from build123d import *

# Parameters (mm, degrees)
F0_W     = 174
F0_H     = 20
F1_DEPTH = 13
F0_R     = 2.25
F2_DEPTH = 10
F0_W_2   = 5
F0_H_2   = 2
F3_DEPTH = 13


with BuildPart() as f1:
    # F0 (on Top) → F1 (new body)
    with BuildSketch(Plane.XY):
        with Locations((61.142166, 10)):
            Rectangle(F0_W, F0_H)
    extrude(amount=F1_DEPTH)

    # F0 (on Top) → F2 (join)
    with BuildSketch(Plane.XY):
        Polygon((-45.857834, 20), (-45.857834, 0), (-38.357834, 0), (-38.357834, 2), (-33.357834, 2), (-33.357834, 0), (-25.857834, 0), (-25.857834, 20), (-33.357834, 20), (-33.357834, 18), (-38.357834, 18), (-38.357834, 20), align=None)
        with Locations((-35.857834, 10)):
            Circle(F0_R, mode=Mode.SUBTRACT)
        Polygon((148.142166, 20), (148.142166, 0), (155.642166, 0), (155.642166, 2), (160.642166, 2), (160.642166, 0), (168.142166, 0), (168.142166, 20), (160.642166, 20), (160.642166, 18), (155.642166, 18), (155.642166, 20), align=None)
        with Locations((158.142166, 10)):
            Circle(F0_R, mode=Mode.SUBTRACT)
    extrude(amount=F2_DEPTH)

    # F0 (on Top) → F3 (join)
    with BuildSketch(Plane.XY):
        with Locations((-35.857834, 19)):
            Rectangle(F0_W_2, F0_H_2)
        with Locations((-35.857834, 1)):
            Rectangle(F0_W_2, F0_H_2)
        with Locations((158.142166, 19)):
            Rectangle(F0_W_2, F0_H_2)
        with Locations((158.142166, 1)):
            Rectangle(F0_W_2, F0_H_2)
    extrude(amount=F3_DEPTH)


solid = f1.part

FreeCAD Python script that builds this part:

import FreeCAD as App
import Part
import Sketcher

V = App.Vector


def add_polygon(sketch, points):
    """Adds a closed chain of lines whose ends are joined by coincident constraints."""
    first, n = sketch.GeometryCount, len(points)
    for a, b in zip(points, points[1:] + points[:1]):
        sketch.addGeometry(Part.LineSegment(App.Vector(*a, 0), App.Vector(*b, 0)), False)
    for i in range(n):
        sketch.addConstraint(Sketcher.Constraint("Coincident", first + i, 2, first + (i + 1) % n, 1))

doc = App.newDocument("Part")
body = doc.addObject("PartDesign::Body", "Body")

# Sketch on XY plane
sketch1 = doc.addObject("Sketcher::SketchObject", "Sketch")
body.addObject(sketch1)
sketch1.AttachmentSupport = (doc.XY_Plane, [""])
sketch1.MapMode = "FlatFace"
add_polygon(sketch1, [(-26, 20), (-26, 0), (148, 0), (148, 20)])  # lines 0-3
sketch1.addConstraint([
    Sketcher.Constraint("Vertical", 0),
    Sketcher.Constraint("Horizontal", 1),
    Sketcher.Constraint("Vertical", 2),
    Sketcher.Constraint("Horizontal", 3),
    Sketcher.Constraint("PointOnObject", 0, 2, -1),
    Sketcher.Constraint("DistanceX", 1, 1, 1, 2, 174.0),
    Sketcher.Constraint("DistanceY", 0, 2, 0, 1, 20.0),
    Sketcher.Constraint("DistanceX", 0, 2, -1, 1, 25.857834),
])
pad1 = doc.addObject("PartDesign::Pad", "Pad")
body.addObject(pad1)
pad1.Profile = sketch1
pad1.Length = 13

# Sketch on XY plane
sketch2 = doc.addObject("Sketcher::SketchObject", "Sketch001")
body.addObject(sketch2)
sketch2.AttachmentSupport = (doc.XY_Plane, [""])
sketch2.MapMode = "FlatFace"
add_polygon(sketch2, [(-45.9, 20), (-45.9, 0), (-38.4, 0), (-38.4, 2), (-33.4, 2), (-33.4, 0), (-25.9, 0), (-25.9, 20), (-33.4, 20), (-33.4, 18), (-38.4, 18), (-38.4, 20)])  # lines 0-11
sketch2.addGeometry(Part.Circle(V(-35.9, 10, 0), V(0, 0, 1), 2.2), False)  # 12
add_polygon(sketch2, [(148.1, 20), (148.1, 0), (155.6, 0), (155.6, 2), (160.6, 2), (160.6, 0), (168.1, 0), (168.1, 20), (160.6, 20), (160.6, 18), (155.6, 18), (155.6, 20)])  # lines 13-24
sketch2.addGeometry(Part.Circle(V(158.1, 10, 0), V(0, 0, 1), 2.2), False)  # 25
sketch2.addConstraint([
    Sketcher.Constraint("Vertical", 0),
    Sketcher.Constraint("Horizontal", 1),
    Sketcher.Constraint("Vertical", 2),
    Sketcher.Constraint("Horizontal", 3),
    Sketcher.Constraint("Vertical", 4),
    Sketcher.Constraint("Horizontal", 5),
    Sketcher.Constraint("Vertical", 6),
    Sketcher.Constraint("Horizontal", 7),
    Sketcher.Constraint("Vertical", 8),
    Sketcher.Constraint("Horizontal", 9),
    Sketcher.Constraint("Vertical", 10),
    Sketcher.Constraint("Horizontal", 11),
    Sketcher.Constraint("Vertical", 13),
    Sketcher.Constraint("Horizontal", 14),
    Sketcher.Constraint("Vertical", 15),
    Sketcher.Constraint("Horizontal", 16),
    Sketcher.Constraint("Vertical", 17),
    Sketcher.Constraint("Horizontal", 18),
    Sketcher.Constraint("Vertical", 19),
    Sketcher.Constraint("Horizontal", 20),
    Sketcher.Constraint("Vertical", 21),
    Sketcher.Constraint("Horizontal", 22),
    Sketcher.Constraint("Vertical", 23),
    Sketcher.Constraint("Horizontal", 24),
    Sketcher.Constraint("Equal", 12, 25),
    Sketcher.Constraint("PointOnObject", 0, 2, -1),
    Sketcher.Constraint("PointOnObject", 4, 2, -1),
    Sketcher.Constraint("PointOnObject", 13, 2, -1),
    Sketcher.Constraint("PointOnObject", 17, 2, -1),
    Sketcher.Constraint("Horizontal", 12, 3, 25, 3),
    Sketcher.Constraint("Horizontal", 7, 2, 10, 2),
    Sketcher.Constraint("Horizontal", 3, 2, 15, 2),
    Sketcher.Constraint("Horizontal", 11, 2, 19, 2),
    Sketcher.Constraint("Horizontal", 9, 2, 21, 2),
    Sketcher.Constraint("Horizontal", 20, 2, 23, 2),
    Sketcher.Constraint("Vertical", 4, 2, 7, 2),
    Sketcher.Constraint("Vertical", 2, 2, 9, 2),
    Sketcher.Constraint("Vertical", 17, 2, 20, 2),
    Sketcher.Constraint("Vertical", 15, 2, 22, 2),
    Sketcher.Constraint("Equal", 1, 5),
    Sketcher.Constraint("Equal", 11, 14),
    Sketcher.Constraint("Equal", 9, 16),
    Sketcher.Constraint("Equal", 14, 18),
    Sketcher.Constraint("Equal", 4, 8),
    Sketcher.Constraint("Diameter", 12, 4.5),
    Sketcher.Constraint("DistanceX", 3, 1, 3, 2, 5.0),
    Sketcher.Constraint("DistanceY", 0, 2, 0, 1, 20.0),
    Sketcher.Constraint("DistanceY", 2, 1, 2, 2, 2.0),
    Sketcher.Constraint("DistanceX", 1, 1, 1, 2, 7.5),
    Sketcher.Constraint("DistanceY", -1, 1, 12, 3, 10.0),
    Sketcher.Constraint("DistanceX", 12, 3, 25, 3, 194.0),
    Sketcher.Constraint("DistanceX", 0, 2, 12, 3, 10.0),
    Sketcher.Constraint("DistanceX", 13, 2, 25, 3, 10.0),
    Sketcher.Constraint("DistanceX", 12, 3, -1, 1, 35.857834),
])
pad2 = doc.addObject("PartDesign::Pad", "Pad001")
body.addObject(pad2)
pad2.Profile = sketch2
pad2.Length = 10

# Sketch on XY plane
sketch3 = doc.addObject("Sketcher::SketchObject", "Sketch002")
body.addObject(sketch3)
sketch3.AttachmentSupport = (doc.XY_Plane, [""])
sketch3.MapMode = "FlatFace"
add_polygon(sketch3, [(-38.4, 20), (-38.4, 18), (-33.4, 18), (-33.4, 20)])  # lines 0-3
add_polygon(sketch3, [(-38.4, 2), (-38.4, 0), (-33.4, 0), (-33.4, 2)])  # lines 4-7
add_polygon(sketch3, [(155.6, 20), (155.6, 18), (160.6, 18), (160.6, 20)])  # lines 8-11
add_polygon(sketch3, [(155.6, 2), (155.6, 0), (160.6, 0), (160.6, 2)])  # lines 12-15
sketch3.addConstraint([
    Sketcher.Constraint("Vertical", 0),
    Sketcher.Constraint("Horizontal", 1),
    Sketcher.Constraint("Vertical", 2),
    Sketcher.Constraint("Horizontal", 3),
    Sketcher.Constraint("Vertical", 4),
    Sketcher.Constraint("Horizontal", 5),
    Sketcher.Constraint("Vertical", 6),
    Sketcher.Constraint("Horizontal", 7),
    Sketcher.Constraint("Vertical", 8),
    Sketcher.Constraint("Horizontal", 9),
    Sketcher.Constraint("Vertical", 10),
    Sketcher.Constraint("Horizontal", 11),
    Sketcher.Constraint("Vertical", 12),
    Sketcher.Constraint("Horizontal", 13),
    Sketcher.Constraint("Vertical", 14),
    Sketcher.Constraint("Horizontal", 15),
    Sketcher.Constraint("PointOnObject", 4, 2, -1),
    Sketcher.Constraint("PointOnObject", 12, 2, -1),
    Sketcher.Constraint("Horizontal", 1, 2, 8, 2),
    Sketcher.Constraint("Horizontal", 3, 2, 10, 2),
    Sketcher.Constraint("Horizontal", 7, 2, 14, 2),
    Sketcher.Constraint("Vertical", 3, 2, 4, 2),
    Sketcher.Constraint("Vertical", 2, 2, 5, 2),
    Sketcher.Constraint("Vertical", 11, 2, 12, 2),
    Sketcher.Constraint("Vertical", 10, 2, 13, 2),
    Sketcher.Constraint("Equal", 7, 9),
    Sketcher.Constraint("Equal", 2, 4),
    Sketcher.Constraint("DistanceX", 1, 1, 1, 2, 5.0),
    Sketcher.Constraint("DistanceY", 0, 2, 0, 1, 2.0),
    Sketcher.Constraint("DistanceY", -1, 1, 0, 2, 18.0),
    Sketcher.Constraint("DistanceX", 1, 2, 8, 2, 189.0),
    Sketcher.Constraint("DistanceX", 0, 2, -1, 1, 38.357834),
])
pad3 = doc.addObject("PartDesign::Pad", "Pad002")
body.addObject(pad3)
pad3.Profile = sketch3
pad3.Length = 13

doc.recompute()
